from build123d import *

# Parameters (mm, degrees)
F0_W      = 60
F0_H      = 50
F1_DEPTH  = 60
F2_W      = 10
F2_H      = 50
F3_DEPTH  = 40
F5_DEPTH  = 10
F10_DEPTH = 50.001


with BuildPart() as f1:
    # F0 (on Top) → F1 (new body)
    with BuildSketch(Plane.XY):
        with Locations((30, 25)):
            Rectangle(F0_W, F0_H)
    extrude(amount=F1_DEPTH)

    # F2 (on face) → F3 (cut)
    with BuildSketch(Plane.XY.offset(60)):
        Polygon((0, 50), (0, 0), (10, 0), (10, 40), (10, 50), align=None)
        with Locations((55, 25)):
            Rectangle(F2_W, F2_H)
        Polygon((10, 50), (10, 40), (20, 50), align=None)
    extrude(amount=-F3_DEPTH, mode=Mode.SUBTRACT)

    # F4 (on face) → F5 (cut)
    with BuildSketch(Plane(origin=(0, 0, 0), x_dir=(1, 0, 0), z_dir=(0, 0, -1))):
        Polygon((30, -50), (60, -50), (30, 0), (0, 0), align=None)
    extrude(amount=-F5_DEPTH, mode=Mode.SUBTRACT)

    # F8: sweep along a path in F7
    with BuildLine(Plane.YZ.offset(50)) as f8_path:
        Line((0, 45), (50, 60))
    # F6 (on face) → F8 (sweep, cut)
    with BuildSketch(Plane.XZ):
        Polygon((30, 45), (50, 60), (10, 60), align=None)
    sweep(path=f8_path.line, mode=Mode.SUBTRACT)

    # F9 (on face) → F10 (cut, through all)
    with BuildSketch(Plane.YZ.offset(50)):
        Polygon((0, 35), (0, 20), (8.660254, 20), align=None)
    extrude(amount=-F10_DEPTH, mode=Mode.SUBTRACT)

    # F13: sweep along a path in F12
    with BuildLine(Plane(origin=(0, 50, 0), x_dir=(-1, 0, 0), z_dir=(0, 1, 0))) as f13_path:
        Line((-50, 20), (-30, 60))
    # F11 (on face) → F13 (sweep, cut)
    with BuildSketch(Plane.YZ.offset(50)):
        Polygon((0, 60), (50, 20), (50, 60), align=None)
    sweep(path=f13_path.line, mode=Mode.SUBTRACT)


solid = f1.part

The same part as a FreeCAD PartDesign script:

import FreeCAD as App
import Part
import Sketcher

V = App.Vector
Q = App.Units.Quantity

doc = App.newDocument("Part")
body = doc.addObject("PartDesign::Body", "Body")

# Sketch on XY plane
sketch1 = body.newObject("Sketcher::SketchObject", "Sketch")
sketch1.AttachmentSupport = (doc.getObject("XY_Plane"), [""])
sketch1.MapMode = "FlatFace"
sketch1.addGeometry([
    Part.LineSegment(V(0, 50, 0), V(0, 0, 0)),
    Part.LineSegment(V(0, 0, 0), V(60, 0, 0)),
    Part.LineSegment(V(60, 0, 0), V(60, 50, 0)),
    Part.LineSegment(V(60, 50, 0), V(0, 50, 0)),
], False)
sketch1.addConstraint([
    Sketcher.Constraint("Coincident", 0, 2, 1, 1),
    Sketcher.Constraint("Coincident", 1, 2, 2, 1),
    Sketcher.Constraint("Coincident", 2, 2, 3, 1),
    Sketcher.Constraint("Coincident", 3, 2, 0, 1),
    Sketcher.Constraint("Vertical", 0),
    Sketcher.Constraint("Horizontal", 1),
    Sketcher.Constraint("Vertical", 2),
    Sketcher.Constraint("Horizontal", 3),
    Sketcher.Constraint("Coincident", 0, 2, -1, 1),
    Sketcher.Constraint("DistanceX", 1, 1, 1, 2, Q("60 mm")),
    Sketcher.Constraint("DistanceY", 0, 2, 0, 1, Q("50 mm")),
])
pad1 = body.newObject("PartDesign::Pad", "Pad")
pad1.Profile = sketch1
pad1.Length = 60

# Sketch on XY plane
sketch2 = body.newObject("Sketcher::SketchObject", "Sketch001")
sketch2.AttachmentSupport = (doc.getObject("XY_Plane"), [""])
sketch2.MapMode = "FlatFace"
sketch2.AttachmentOffset = App.Placement(V(0, 0, 60), App.Rotation())
sketch2.addGeometry([
    Part.LineSegment(V(0, 50, 0), V(0, 0, 0)),  # 0
    Part.LineSegment(V(0, 0, 0), V(10, 0, 0)),  # 1
    Part.LineSegment(V(10, 0, 0), V(10, 40, 0)),  # 2
    Part.LineSegment(V(10, 40, 0), V(20, 50, 0)),  # 3
    Part.LineSegment(V(20, 50, 0), V(0, 50, 0)),  # 4
    Part.LineSegment(V(50, 50, 0), V(50, 0, 0)),  # 5
    Part.LineSegment(V(50, 0, 0), V(60, 0, 0)),  # 6
    Part.LineSegment(V(60, 0, 0), V(60, 50, 0)),  # 7
    Part.LineSegment(V(60, 50, 0), V(50, 50, 0)),  # 8
], False)
sketch2.addConstraint([
    Sketcher.Constraint("Coincident", 0, 2, 1, 1),
    Sketcher.Constraint("Coincident", 1, 2, 2, 1),
    Sketcher.Constraint("Coincident", 2, 2, 3, 1),
    Sketcher.Constraint("Coincident", 3, 2, 4, 1),
    Sketcher.Constraint("Coincident", 4, 2, 0, 1),
    Sketcher.Constraint("Coincident", 5, 2, 6, 1),
    Sketcher.Constraint("Coincident", 6, 2, 7, 1),
    Sketcher.Constraint("Coincident", 7, 2, 8, 1),
    Sketcher.Constraint("Coincident", 8, 2, 5, 1),
    Sketcher.Constraint("Vertical", 0),
    Sketcher.Constraint("Horizontal", 1),
    Sketcher.Constraint("Vertical", 2),
    Sketcher.Constraint("Horizontal", 4),
    Sketcher.Constraint("Vertical", 5),
    Sketcher.Constraint("Horizontal", 6),
    Sketcher.Constraint("Vertical", 7),
    Sketcher.Constraint("Horizontal", 8),
    Sketcher.Constraint("Coincident", 0, 2, -1, 1),
    Sketcher.Constraint("PointOnObject", 5, 2, -1),
    Sketcher.Constraint("Horizontal", 4, 2, 7, 2),
    Sketcher.Constraint("Equal", 1, 6),
    Sketcher.Constraint("DistanceX", 1, 1, 1, 2, Q("10 mm")),
    Sketcher.Constraint("DistanceX", 4, 2, 4, 1, Q("20 mm")),
    Sketcher.Constraint("DistanceY", 0, 2, 0, 1, Q("50 mm")),
    Sketcher.Constraint("DistanceY", 2, 1, 2, 2, Q("40 mm")),
    Sketcher.Constraint("DistanceX", -1, 1, 5, 2, Q("50 mm")),
])
pocket1 = body.newObject("PartDesign::Pocket", "Pocket")
pocket1.Profile = sketch2
pocket1.Length = 40

# Sketch on XY plane
sketch3 = body.newObject("Sketcher::SketchObject", "Sketch002")
sketch3.AttachmentSupport = (doc.getObject("XY_Plane"), [""])
sketch3.MapMode = "FlatFace"
sketch3.addGeometry([
    Part.LineSegment(V(30, 50, 0), V(60, 50, 0)),
    Part.LineSegment(V(60, 50, 0), V(30, 0, 0)),
    Part.LineSegment(V(30, 0, 0), V(0, 0, 0)),
    Part.LineSegment(V(0, 0, 0), V(30, 50, 0)),
], False)
sketch3.addConstraint([
    Sketcher.Constraint("Coincident", 0, 2, 1, 1),
    Sketcher.Constraint("Coincident", 1, 2, 2, 1),
    Sketcher.Constraint("Coincident", 2, 2, 3, 1),
    Sketcher.Constraint("Coincident", 3, 2, 0, 1),
    Sketcher.Constraint("Horizontal", 0),
    Sketcher.Constraint("Horizontal", 2),
    Sketcher.Constraint("Coincident", 2, 2, -1, 1),
    Sketcher.Constraint("Parallel", 1, 3),
    Sketcher.Constraint("Vertical", 1, 2, 3, 2),
    Sketcher.Constraint("DistanceX", 0, 1, 0, 2, Q("30 mm")),
    Sketcher.Constraint("DistanceY", -1, 1, 0, 2, Q("50 mm")),
])
pocket2 = body.newObject("PartDesign::Pocket", "Pocket001")
pocket2.Profile = sketch3
pocket2.Length = 10
pocket2.Reversed = True

# Sketch on XZ plane
sketch4 = body.newObject("Sketcher::SketchObject", "Sketch003")
sketch4.AttachmentSupport = (doc.getObject("XZ_Plane"), [""])
sketch4.MapMode = "FlatFace"
sketch4.addGeometry([
    Part.LineSegment(V(30, 45, 0), V(50, 60, 0)),
    Part.LineSegment(V(50, 60, 0), V(10, 60, 0)),
    Part.LineSegment(V(10, 60, 0), V(30, 45, 0)),
], False)
sketch4.addConstraint([
    Sketcher.Constraint("Coincident", 0, 2, 1, 1),
    Sketcher.Constraint("Coincident", 1, 2, 2, 1),
    Sketcher.Constraint("Coincident", 2, 2, 0, 1),
    Sketcher.Constraint("Horizontal", 1),
    Sketcher.Constraint("Equal", 0, 2),
    Sketcher.Constraint("DistanceX", 1, 2, 1, 1, Q("40 mm")),
    Sketcher.Constraint("Distance", 0, Q("25 mm")),
    Sketcher.Constraint("DistanceX", -1, 1, 0, 2, Q("50 mm")),
    Sketcher.Constraint("DistanceY", -1, 1, 0, 2, Q("60 mm")),
])

# Sketch on an angled plane
sketch5 = body.newObject("Sketcher::SketchObject", "Sketch004")
sketch5.Placement = App.Placement(V(0, -12.385321, 41.284404), App.Rotation(V(0, 0.957826285, 0.287347886), V(1, 0, 0), V(0, 0.287347886, -0.957826285), "ZXY"))
sketch5.addGeometry(Part.LineSegment(V(13, 50, 0), V(65, 50, 0)), False)
sketch5.addConstraint([
    Sketcher.Constraint("Horizontal", 0),
    Sketcher.Constraint("DistanceY", -1, 1, 0, 1, Q("50 mm")),
    Sketcher.Constraint("DistanceX", 0, 1, 0, 2, Q("52.201533 mm")),
    Sketcher.Constraint("DistanceX", -1, 1, 0, 1, Q("12.930655 mm")),
])
doc.recompute()

subtractivepipe = body.newObject("PartDesign::SubtractivePipe", "SubtractivePipe")
subtractivepipe.Profile = sketch4
subtractivepipe.Spine = (sketch5, ["Edge1"])

# Sketch on YZ plane
sketch6 = body.newObject("Sketcher::SketchObject", "Sketch005")
sketch6.AttachmentSupport = (doc.getObject("YZ_Plane"), [""])
sketch6.MapMode = "FlatFace"
sketch6.AttachmentOffset = App.Placement(V(0, 0, 50), App.Rotation())
sketch6.addGeometry([
    Part.LineSegment(V(0, 35, 0), V(0, 20, 0)),
    Part.LineSegment(V(0, 20, 0), V(9, 20, 0)),
    Part.LineSegment(V(9, 20, 0), V(0, 35, 0)),
], False)
sketch6.addConstraint([
    Sketcher.Constraint("Coincident", 0, 2, 1, 1),
    Sketcher.Constraint("Coincident", 1, 2, 2, 1),
    Sketcher.Constraint("Coincident", 2, 2, 0, 1),
    Sketcher.Constraint("Vertical", 0),
    Sketcher.Constraint("Horizontal", 1),
    Sketcher.Constraint("PointOnObject", 0, 2, -2),
    Sketcher.Constraint("DistanceY", 0, 2, 0, 1, Q("15 mm")),
    Sketcher.Constraint("Angle", 2, Q("120 deg")),
    Sketcher.Constraint("DistanceY", -1, 1, 0, 2, Q("20 mm")),
])
pocket3 = body.newObject("PartDesign::Pocket", "Pocket002")
pocket3.Profile = sketch6
pocket3.Type = "ThroughAll"

# Sketch on YZ plane
sketch7 = body.newObject("Sketcher::SketchObject", "Sketch006")
sketch7.AttachmentSupport = (doc.getObject("YZ_Plane"), [""])
sketch7.MapMode = "FlatFace"
sketch7.AttachmentOffset = App.Placement(V(0, 0, 50), App.Rotation())
sketch7.addGeometry([
    Part.LineSegment(V(0, 60, 0), V(50, 20, 0)),
    Part.LineSegment(V(50, 20, 0), V(50, 60, 0)),
    Part.LineSegment(V(50, 60, 0), V(0, 60, 0)),
], False)
sketch7.addConstraint([
    Sketcher.Constraint("Coincident", 0, 2, 1, 1),
    Sketcher.Constraint("Coincident", 1, 2, 2, 1),
    Sketcher.Constraint("Coincident", 2, 2, 0, 1),
    Sketcher.Constraint("Vertical", 1),
    Sketcher.Constraint("Horizontal", 2),
    Sketcher.Constraint("PointOnObject", 2, 2, -2),
    Sketcher.Constraint("DistanceX", 2, 2, 2, 1, Q("50 mm")),
    Sketcher.Constraint("DistanceY", 1, 1, 1, 2, Q("40 mm")),
    Sketcher.Constraint("DistanceY", -1, 1, 0, 2, Q("20 mm")),
])

# Sketch on an angled plane
sketch8 = body.newObject("Sketcher::SketchObject", "Sketch007")
sketch8.Placement = App.Placement(V(48, 0, 24), App.Rotation(V(-0.447213595, 0, 0.894427191), V(0, 1, 0), V(-0.894427191, 0, -0.447213595), "ZXY"))
sketch8.addGeometry(Part.LineSegment(V(-4, 50, 0), V(40, 50, 0)), False)
sketch8.addConstraint([
    Sketcher.Constraint("Horizontal", 0),
    Sketcher.Constraint("DistanceY", -1, 1, 0, 1, Q("50 mm")),
    Sketcher.Constraint("DistanceX", 0, 1, 0, 2, Q("44.72136 mm")),
    Sketcher.Constraint("DistanceX", 0, 1, -1, 1, Q("4.472136 mm")),
])
doc.recompute()

subtractivepipe2 = body.newObject("PartDesign::SubtractivePipe", "SubtractivePipe001")
subtractivepipe2.Profile = sketch7
subtractivepipe2.Spine = (sketch8, ["Edge1"])

doc.recompute()
